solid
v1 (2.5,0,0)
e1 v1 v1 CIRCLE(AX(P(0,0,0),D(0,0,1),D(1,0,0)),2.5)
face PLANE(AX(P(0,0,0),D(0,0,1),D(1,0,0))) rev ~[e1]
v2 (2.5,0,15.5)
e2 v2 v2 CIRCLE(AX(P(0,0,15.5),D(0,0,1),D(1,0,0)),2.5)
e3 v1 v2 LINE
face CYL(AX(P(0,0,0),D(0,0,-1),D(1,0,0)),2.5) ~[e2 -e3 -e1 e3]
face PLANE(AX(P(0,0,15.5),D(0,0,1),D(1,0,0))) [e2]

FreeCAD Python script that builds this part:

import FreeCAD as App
import Part
import Sketcher

V = App.Vector
Q = App.Units.Quantity

doc = App.newDocument("Part")
body = doc.addObject("PartDesign::Body", "Body")

sketch1 = doc.addObject("Sketcher::SketchObject", "Sketch")
body.addObject(sketch1)
sketch1.AttachmentSupport = (doc.XY_Plane, [""])
sketch1.MapMode = "FlatFace"
sketch1.addGeometry(Part.Circle(V(0, 0, 0), V(0, 0, 1), 2.5), False)
sketch1.addConstraint(Sketcher.Constraint("Coincident", 0, 3, -1, 1))
sketch1.addConstraint(Sketcher.Constraint("Diameter", 0, Q("5 mm")))
pad1 = doc.addObject("PartDesign::Pad", "Pad")
body.addObject(pad1)
pad1.Profile = sketch1
pad1.Length = 15.5

doc.recompute()
